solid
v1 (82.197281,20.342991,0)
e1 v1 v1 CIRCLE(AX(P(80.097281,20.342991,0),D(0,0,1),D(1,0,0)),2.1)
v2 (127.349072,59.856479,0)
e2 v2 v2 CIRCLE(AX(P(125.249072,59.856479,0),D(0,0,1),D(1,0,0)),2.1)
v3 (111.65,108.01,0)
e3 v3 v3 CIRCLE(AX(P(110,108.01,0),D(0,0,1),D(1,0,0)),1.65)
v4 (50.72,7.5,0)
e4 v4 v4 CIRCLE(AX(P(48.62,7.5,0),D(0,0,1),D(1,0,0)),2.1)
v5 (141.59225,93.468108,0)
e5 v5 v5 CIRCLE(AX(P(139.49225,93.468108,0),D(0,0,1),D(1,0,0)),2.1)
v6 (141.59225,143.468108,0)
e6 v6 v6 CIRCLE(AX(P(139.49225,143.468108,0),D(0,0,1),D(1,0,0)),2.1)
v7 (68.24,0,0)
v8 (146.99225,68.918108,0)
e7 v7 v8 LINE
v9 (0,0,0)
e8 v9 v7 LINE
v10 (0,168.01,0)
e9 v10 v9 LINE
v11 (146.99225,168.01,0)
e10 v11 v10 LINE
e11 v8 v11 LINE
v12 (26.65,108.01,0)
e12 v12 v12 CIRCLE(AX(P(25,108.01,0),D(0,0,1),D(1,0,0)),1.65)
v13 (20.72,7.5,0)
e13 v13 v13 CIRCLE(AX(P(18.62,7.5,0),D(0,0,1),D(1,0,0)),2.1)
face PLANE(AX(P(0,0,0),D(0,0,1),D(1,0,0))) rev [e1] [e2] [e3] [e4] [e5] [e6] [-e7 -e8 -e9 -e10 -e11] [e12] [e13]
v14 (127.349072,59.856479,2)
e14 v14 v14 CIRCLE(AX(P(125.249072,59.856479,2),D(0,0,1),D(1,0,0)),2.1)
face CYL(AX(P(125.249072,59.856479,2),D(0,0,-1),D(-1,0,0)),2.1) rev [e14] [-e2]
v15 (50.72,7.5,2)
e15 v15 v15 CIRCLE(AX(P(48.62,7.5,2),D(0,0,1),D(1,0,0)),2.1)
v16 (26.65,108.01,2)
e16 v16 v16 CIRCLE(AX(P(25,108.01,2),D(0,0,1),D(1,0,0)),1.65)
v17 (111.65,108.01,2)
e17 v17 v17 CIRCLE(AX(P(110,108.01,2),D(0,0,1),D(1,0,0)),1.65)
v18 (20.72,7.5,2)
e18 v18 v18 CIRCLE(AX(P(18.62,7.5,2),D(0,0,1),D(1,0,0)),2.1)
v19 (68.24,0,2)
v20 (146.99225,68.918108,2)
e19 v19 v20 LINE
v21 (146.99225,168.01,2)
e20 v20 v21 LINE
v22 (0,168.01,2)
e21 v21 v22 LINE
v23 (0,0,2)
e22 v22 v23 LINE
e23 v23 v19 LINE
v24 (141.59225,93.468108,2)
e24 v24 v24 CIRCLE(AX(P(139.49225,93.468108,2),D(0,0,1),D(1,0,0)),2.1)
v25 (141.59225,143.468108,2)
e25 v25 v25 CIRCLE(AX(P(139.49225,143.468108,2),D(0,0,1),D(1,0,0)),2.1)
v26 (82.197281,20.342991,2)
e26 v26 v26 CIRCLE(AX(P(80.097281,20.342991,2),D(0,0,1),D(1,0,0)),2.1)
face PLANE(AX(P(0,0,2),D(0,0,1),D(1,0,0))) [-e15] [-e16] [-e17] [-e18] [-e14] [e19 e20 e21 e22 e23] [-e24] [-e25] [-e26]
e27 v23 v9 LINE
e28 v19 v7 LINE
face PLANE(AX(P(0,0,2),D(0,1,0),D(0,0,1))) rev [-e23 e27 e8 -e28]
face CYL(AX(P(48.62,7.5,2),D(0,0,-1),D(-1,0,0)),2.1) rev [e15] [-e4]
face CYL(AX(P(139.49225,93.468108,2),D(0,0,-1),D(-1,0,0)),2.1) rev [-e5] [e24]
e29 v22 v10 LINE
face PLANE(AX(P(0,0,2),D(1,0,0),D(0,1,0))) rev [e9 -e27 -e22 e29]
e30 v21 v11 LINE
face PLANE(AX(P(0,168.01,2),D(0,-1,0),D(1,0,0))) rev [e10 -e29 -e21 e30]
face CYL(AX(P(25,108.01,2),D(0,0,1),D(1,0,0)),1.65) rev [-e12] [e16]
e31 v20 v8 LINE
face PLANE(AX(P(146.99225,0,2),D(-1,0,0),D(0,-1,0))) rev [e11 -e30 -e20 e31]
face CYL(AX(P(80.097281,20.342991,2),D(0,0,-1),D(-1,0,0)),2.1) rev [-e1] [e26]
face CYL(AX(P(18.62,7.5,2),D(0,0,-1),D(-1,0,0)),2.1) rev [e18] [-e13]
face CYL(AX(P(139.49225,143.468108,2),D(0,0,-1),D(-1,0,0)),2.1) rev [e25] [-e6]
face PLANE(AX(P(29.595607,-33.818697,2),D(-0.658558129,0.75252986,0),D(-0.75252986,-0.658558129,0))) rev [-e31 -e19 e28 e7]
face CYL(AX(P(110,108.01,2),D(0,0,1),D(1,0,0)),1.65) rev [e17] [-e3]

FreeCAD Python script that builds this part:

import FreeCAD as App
import Part
import Sketcher

V = App.Vector
Q = App.Units.Quantity

doc = App.newDocument("Part")
params = doc.addObject("Spreadsheet::Sheet", "Params")
for row, (alias, value) in enumerate([
    ("sketch1_diameter", "4.2 mm"),
    ("sketch1_width", "68.24 mm"),
    ("sketch1_height", "168.01 mm"),
    ("sketch1_length", "104.65 mm"),
    ("pad1_length", "2 mm"),
    ("sketch2_diameter", "2 mm"),
    ("pocket1_length", "10 mm"),
    ("sketch3_diameter", "3.3 mm"),
    ("hole_diameter", "3.3 mm"),
    ("hole_depth", "11.5 mm"),
], start=1):
    params.set(f"A{row}", alias)
    params.set(f"B{row}", "=" + value)
    params.setAlias(f"B{row}", alias)

body = doc.addObject("PartDesign::Body", "Body")

# Sketch on XY plane
sketch1 = body.newObject("Sketcher::SketchObject", "Sketch")
sketch1.AttachmentSupport = (doc.getObject("XY_Plane"), [""])
sketch1.MapMode = "FlatFace"
sketch1.addGeometry([
    Part.LineSegment(V(0, 0, 0), V(68.24, 0, 0)),  # 0
    Part.LineSegment(V(68.24, 0, 0), V(146.99225, 68.918108, 0)),  # 1
    Part.LineSegment(V(146.99225, 68.918108, 0), V(146.99225, 168.01, 0)),  # 2
    Part.LineSegment(V(146.99225, 168.01, 0), V(0, 168.01, 0)),  # 3
    Part.LineSegment(V(0, 168.01, 0), V(0, 0, 0)),  # 4
    Part.Circle(V(18.62, 7.5, 0), V(0, 0, 1), 2.1),  # 5
    Part.Circle(V(48.62, 7.5, 0), V(0, 0, 1), 2.1),  # 6
    Part.Circle(V(80.097281, 20.342991, 0), V(0, 0, 1), 2.1),  # 7
    Part.Circle(V(125.249072, 59.856479, 0), V(0, 0, 1), 2.1),  # 8
    Part.Circle(V(139.49225, 93.468108, 0), V(0, 0, 1), 2.1),  # 9
    Part.Circle(V(139.49225, 143.468108, 0), V(0, 0, 1), 2.1),  # 10
], False)
sketch1.addConstraint([
    Sketcher.Constraint("Coincident", 0, 2, 1, 1),
    Sketcher.Constraint("Coincident", 1, 2, 2, 1),
    Sketcher.Constraint("Coincident", 2, 2, 3, 1),
    Sketcher.Constraint("Coincident", 3, 2, 4, 1),
    Sketcher.Constraint("Coincident", 4, 2, 0, 1),
    Sketcher.Constraint("Horizontal", 0),
    Sketcher.Constraint("Vertical", 2),
    Sketcher.Constraint("Horizontal", 3),
    Sketcher.Constraint("Vertical", 4),
    Sketcher.Constraint("Coincident", 4, 2, -1, 1),
    Sketcher.Constraint("Equal", 5, 6),
    Sketcher.Constraint("Equal", 6, 7),
    Sketcher.Constraint("Equal", 7, 8),
    Sketcher.Constraint("Equal", 8, 9),
    Sketcher.Constraint("Equal", 9, 10),
    Sketcher.Constraint("Horizontal", 5, 3, 6, 3),
    Sketcher.Constraint("Vertical", 9, 3, 10, 3),
    Sketcher.Constraint("Diameter", 5, Q("4.2 mm")),
    Sketcher.Constraint("DistanceX", 5, 3, 6, 3, Q("30 mm")),
    Sketcher.Constraint("DistanceY", 9, 3, 10, 3, Q("50 mm")),
    Sketcher.Constraint("DistanceX", 0, 1, 0, 2, Q("68.24 mm")),
    Sketcher.Constraint("DistanceY", 4, 2, 4, 1, Q("168.01 mm")),
    Sketcher.Constraint("DistanceY", -1, 1, 5, 3, Q("7.5 mm")),
    Sketcher.Constraint("Angle", 1, Q("41.19 deg")),
    Sketcher.Constraint("DistanceX", 9, 3, 1, 2, Q("7.5 mm")),
    Sketcher.Constraint("Distance", 1, Q("104.65 mm")),
    Sketcher.Constraint("DistanceX", -1, 1, 5, 3, Q("18.62 mm")),
    Sketcher.Constraint("DistanceY", 1, 2, 9, 3, Q("24.55 mm")),
    Sketcher.Constraint("DistanceX", -1, 1, 7, 3, Q("80.097281 mm")),
    Sketcher.Constraint("DistanceY", -1, 1, 7, 3, Q("20.342991 mm")),
    Sketcher.Constraint("DistanceY", -1, 1, 8, 3, Q("59.856479 mm")),
    Sketcher.Constraint("DistanceX", 7, 3, 8, 3, Q("45.151792 mm")),
])
sketch1.setExpression("Constraints[17]", "Params.sketch1_diameter")
sketch1.setExpression("Constraints[20]", "Params.sketch1_width")
sketch1.setExpression("Constraints[21]", "Params.sketch1_height")
sketch1.setExpression("Constraints[25]", "Params.sketch1_length")
pad1 = body.newObject("PartDesign::Pad", "Pad")
pad1.Profile = sketch1
pad1.setExpression("Length", "Params.pad1_length")

# Sketch on XY plane
sketch2 = body.newObject("Sketcher::SketchObject", "Sketch001")
sketch2.AttachmentSupport = (doc.getObject("XY_Plane"), [""])
sketch2.MapMode = "FlatFace"
sketch2.AttachmentOffset = App.Placement(V(0, 0, 2), App.Rotation())
sketch2.addGeometry([
    Part.Circle(V(25, 108.01, 0), V(0, 0, 1), 1),
    Part.Circle(V(110, 108.01, 0), V(0, 0, 1), 1),
], False)
sketch2.addConstraint([
    Sketcher.Constraint("Equal", 0, 1),
    Sketcher.Constraint("Horizontal", 0, 3, 1, 3),
    Sketcher.Constraint("Diameter", 0, Q("2 mm")),
    Sketcher.Constraint("DistanceX", -1, 1, 0, 3, Q("25 mm")),
    Sketcher.Constraint("DistanceX", -1, 1, 1, 3, Q("110 mm")),
    Sketcher.Constraint("DistanceY", -1, 1, 0, 3, Q("108.01 mm")),
])
sketch2.setExpression("Constraints[2]", "Params.sketch2_diameter")
pocket1 = body.newObject("PartDesign::Pocket", "Pocket")
pocket1.Profile = sketch2
pocket1.setExpression("Length", "Params.pocket1_length")

# Sketch on XY plane
sketch3 = body.newObject("Sketcher::SketchObject", "Sketch002")
sketch3.AttachmentSupport = (doc.getObject("XY_Plane"), [""])
sketch3.MapMode = "FlatFace"
sketch3.AttachmentOffset = App.Placement(V(0, 0, 2), App.Rotation())
sketch3.addGeometry([
    Part.Circle(V(25, 108.01, 0), V(0, 0, 1), 1.65),
    Part.Circle(V(110, 108.01, 0), V(0, 0, 1), 1.65),
], False)
sketch3.addConstraint([
    Sketcher.Constraint("Equal", 0, 1),
    Sketcher.Constraint("Horizontal", 0, 3, 1, 3),
    Sketcher.Constraint("Diameter", 0, Q("3.3 mm")),
    Sketcher.Constraint("DistanceX", -1, 1, 0, 3, Q("25 mm")),
    Sketcher.Constraint("DistanceX", -1, 1, 1, 3, Q("110 mm")),
    Sketcher.Constraint("DistanceY", -1, 1, 0, 3, Q("108.01 mm")),
])
sketch3.setExpression("Constraints[2]", "Params.sketch3_diameter")
doc.recompute()
hole = body.newObject("PartDesign::Hole", "Hole")
hole.Profile = sketch3
hole.ThreadType = "None"
hole.setExpression("Diameter", "Params.hole_diameter")
hole.DepthType = "Dimension"
hole.setExpression("Depth", "Params.hole_depth")
hole.DrillPoint = "Angled"
hole.DrillPointAngle = 118

doc.recompute()
